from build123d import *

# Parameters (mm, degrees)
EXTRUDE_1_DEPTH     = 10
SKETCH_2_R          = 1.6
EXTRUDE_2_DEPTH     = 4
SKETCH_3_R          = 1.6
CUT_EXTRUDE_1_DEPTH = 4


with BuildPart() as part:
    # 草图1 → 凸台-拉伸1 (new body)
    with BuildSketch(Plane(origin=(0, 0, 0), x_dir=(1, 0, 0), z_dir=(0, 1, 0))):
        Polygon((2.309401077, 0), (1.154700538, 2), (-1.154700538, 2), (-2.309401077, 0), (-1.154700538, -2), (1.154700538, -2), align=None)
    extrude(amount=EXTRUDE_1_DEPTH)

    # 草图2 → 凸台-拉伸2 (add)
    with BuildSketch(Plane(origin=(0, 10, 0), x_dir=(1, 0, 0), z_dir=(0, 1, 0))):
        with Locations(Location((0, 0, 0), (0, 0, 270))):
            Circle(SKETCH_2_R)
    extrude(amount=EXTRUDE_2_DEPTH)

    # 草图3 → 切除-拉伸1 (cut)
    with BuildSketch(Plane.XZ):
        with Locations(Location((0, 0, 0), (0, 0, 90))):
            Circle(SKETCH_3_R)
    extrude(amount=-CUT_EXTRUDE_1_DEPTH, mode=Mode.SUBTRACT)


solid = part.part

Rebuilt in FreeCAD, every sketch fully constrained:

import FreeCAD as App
import Part
import Sketcher
Q = App.Units.Quantity

doc = App.newDocument("Part")
body = doc.addObject("PartDesign::Body", "Body")

# Sketch on XZ plane
sketch1 = body.newObject("Sketcher::SketchObject", "Sketch")
sketch1.AttachmentSupport = (doc.getObject("XZ_Plane"), [""])
sketch1.MapMode = "FlatFace"
sketch1.addGeometry([
    Part.LineSegment(App.Vector(2.3, 0, 0), App.Vector(1.2, -2, 0)),  # 0
    Part.LineSegment(App.Vector(1.2, -2, 0), App.Vector(-1.2, -2, 0)),  # 1
    Part.LineSegment(App.Vector(-1.2, -2, 0), App.Vector(-2.3, 0, 0)),  # 2
    Part.LineSegment(App.Vector(-2.3, 0, 0), App.Vector(-1.2, 2, 0)),  # 3
    Part.LineSegment(App.Vector(-1.2, 2, 0), App.Vector(1.2, 2, 0)),  # 4
    Part.LineSegment(App.Vector(1.2, 2, 0), App.Vector(2.3, 0, 0)),  # 5
], False)
sketch1.addConstraint([
    Sketcher.Constraint("Coincident", 0, 2, 1, 1),
    Sketcher.Constraint("Coincident", 1, 2, 2, 1),
    Sketcher.Constraint("Coincident", 2, 2, 3, 1),
    Sketcher.Constraint("Coincident", 3, 2, 4, 1),
    Sketcher.Constraint("Coincident", 4, 2, 5, 1),
    Sketcher.Constraint("Coincident", 5, 2, 0, 1),
    Sketcher.Constraint("Horizontal", 1),
    Sketcher.Constraint("Horizontal", 4),
    Sketcher.Constraint("Symmetric", 0, 2, 3, 2, -1, 1),
    Sketcher.Constraint("Symmetric", 2, 2, 5, 2, -1, 1),
    Sketcher.Constraint("PointOnObject", 2, 2, -1),
    Sketcher.Constraint("Parallel", 2, 5),
    Sketcher.Constraint("Vertical", 1, 2, 3, 2),
    Sketcher.Constraint("Angle", 0, Q("-120 deg")),
    Sketcher.Constraint("DistanceY", 0, 2, -1, 1, Q("2 mm")),
    Sketcher.Constraint("DistanceX", 1, 2, 1, 1, Q("2.309401 mm")),
])
pad1 = body.newObject("PartDesign::Pad", "Pad")
pad1.Profile = sketch1
pad1.Length = 10
pad1.Reversed = True

# Sketch on XZ plane
sketch2 = body.newObject("Sketcher::SketchObject", "Sketch001")
sketch2.AttachmentSupport = (doc.getObject("XZ_Plane"), [""])
sketch2.MapMode = "FlatFace"
sketch2.AttachmentOffset = App.Placement(App.Vector(0, 0, -10), App.Rotation())
sketch2.addGeometry(Part.Circle(App.Vector(0, 0, 0), App.Vector(0, 0, 1), 1.6), False)
sketch2.addConstraint([
    Sketcher.Constraint("Coincident", 0, 3, -1, 1),
    Sketcher.Constraint("Diameter", 0, Q("3.2 mm")),
])
pad2 = body.newObject("PartDesign::Pad", "Pad001")
pad2.Profile = sketch2
pad2.Length = 4
pad2.Reversed = True

# Sketch on XZ plane
sketch3 = body.newObject("Sketcher::SketchObject", "Sketch002")
sketch3.AttachmentSupport = (doc.getObject("XZ_Plane"), [""])
sketch3.MapMode = "FlatFace"
sketch3.addGeometry(Part.Circle(App.Vector(0, 0, 0), App.Vector(0, 0, 1), 1.6), False)
sketch3.addConstraint([
    Sketcher.Constraint("Coincident", 0, 3, -1, 1),
    Sketcher.Constraint("Diameter", 0, Q("3.2 mm")),
])
pocket1 = body.newObject("PartDesign::Pocket", "Pocket")
pocket1.Profile = sketch3
pocket1.Length = 4

doc.recompute()
